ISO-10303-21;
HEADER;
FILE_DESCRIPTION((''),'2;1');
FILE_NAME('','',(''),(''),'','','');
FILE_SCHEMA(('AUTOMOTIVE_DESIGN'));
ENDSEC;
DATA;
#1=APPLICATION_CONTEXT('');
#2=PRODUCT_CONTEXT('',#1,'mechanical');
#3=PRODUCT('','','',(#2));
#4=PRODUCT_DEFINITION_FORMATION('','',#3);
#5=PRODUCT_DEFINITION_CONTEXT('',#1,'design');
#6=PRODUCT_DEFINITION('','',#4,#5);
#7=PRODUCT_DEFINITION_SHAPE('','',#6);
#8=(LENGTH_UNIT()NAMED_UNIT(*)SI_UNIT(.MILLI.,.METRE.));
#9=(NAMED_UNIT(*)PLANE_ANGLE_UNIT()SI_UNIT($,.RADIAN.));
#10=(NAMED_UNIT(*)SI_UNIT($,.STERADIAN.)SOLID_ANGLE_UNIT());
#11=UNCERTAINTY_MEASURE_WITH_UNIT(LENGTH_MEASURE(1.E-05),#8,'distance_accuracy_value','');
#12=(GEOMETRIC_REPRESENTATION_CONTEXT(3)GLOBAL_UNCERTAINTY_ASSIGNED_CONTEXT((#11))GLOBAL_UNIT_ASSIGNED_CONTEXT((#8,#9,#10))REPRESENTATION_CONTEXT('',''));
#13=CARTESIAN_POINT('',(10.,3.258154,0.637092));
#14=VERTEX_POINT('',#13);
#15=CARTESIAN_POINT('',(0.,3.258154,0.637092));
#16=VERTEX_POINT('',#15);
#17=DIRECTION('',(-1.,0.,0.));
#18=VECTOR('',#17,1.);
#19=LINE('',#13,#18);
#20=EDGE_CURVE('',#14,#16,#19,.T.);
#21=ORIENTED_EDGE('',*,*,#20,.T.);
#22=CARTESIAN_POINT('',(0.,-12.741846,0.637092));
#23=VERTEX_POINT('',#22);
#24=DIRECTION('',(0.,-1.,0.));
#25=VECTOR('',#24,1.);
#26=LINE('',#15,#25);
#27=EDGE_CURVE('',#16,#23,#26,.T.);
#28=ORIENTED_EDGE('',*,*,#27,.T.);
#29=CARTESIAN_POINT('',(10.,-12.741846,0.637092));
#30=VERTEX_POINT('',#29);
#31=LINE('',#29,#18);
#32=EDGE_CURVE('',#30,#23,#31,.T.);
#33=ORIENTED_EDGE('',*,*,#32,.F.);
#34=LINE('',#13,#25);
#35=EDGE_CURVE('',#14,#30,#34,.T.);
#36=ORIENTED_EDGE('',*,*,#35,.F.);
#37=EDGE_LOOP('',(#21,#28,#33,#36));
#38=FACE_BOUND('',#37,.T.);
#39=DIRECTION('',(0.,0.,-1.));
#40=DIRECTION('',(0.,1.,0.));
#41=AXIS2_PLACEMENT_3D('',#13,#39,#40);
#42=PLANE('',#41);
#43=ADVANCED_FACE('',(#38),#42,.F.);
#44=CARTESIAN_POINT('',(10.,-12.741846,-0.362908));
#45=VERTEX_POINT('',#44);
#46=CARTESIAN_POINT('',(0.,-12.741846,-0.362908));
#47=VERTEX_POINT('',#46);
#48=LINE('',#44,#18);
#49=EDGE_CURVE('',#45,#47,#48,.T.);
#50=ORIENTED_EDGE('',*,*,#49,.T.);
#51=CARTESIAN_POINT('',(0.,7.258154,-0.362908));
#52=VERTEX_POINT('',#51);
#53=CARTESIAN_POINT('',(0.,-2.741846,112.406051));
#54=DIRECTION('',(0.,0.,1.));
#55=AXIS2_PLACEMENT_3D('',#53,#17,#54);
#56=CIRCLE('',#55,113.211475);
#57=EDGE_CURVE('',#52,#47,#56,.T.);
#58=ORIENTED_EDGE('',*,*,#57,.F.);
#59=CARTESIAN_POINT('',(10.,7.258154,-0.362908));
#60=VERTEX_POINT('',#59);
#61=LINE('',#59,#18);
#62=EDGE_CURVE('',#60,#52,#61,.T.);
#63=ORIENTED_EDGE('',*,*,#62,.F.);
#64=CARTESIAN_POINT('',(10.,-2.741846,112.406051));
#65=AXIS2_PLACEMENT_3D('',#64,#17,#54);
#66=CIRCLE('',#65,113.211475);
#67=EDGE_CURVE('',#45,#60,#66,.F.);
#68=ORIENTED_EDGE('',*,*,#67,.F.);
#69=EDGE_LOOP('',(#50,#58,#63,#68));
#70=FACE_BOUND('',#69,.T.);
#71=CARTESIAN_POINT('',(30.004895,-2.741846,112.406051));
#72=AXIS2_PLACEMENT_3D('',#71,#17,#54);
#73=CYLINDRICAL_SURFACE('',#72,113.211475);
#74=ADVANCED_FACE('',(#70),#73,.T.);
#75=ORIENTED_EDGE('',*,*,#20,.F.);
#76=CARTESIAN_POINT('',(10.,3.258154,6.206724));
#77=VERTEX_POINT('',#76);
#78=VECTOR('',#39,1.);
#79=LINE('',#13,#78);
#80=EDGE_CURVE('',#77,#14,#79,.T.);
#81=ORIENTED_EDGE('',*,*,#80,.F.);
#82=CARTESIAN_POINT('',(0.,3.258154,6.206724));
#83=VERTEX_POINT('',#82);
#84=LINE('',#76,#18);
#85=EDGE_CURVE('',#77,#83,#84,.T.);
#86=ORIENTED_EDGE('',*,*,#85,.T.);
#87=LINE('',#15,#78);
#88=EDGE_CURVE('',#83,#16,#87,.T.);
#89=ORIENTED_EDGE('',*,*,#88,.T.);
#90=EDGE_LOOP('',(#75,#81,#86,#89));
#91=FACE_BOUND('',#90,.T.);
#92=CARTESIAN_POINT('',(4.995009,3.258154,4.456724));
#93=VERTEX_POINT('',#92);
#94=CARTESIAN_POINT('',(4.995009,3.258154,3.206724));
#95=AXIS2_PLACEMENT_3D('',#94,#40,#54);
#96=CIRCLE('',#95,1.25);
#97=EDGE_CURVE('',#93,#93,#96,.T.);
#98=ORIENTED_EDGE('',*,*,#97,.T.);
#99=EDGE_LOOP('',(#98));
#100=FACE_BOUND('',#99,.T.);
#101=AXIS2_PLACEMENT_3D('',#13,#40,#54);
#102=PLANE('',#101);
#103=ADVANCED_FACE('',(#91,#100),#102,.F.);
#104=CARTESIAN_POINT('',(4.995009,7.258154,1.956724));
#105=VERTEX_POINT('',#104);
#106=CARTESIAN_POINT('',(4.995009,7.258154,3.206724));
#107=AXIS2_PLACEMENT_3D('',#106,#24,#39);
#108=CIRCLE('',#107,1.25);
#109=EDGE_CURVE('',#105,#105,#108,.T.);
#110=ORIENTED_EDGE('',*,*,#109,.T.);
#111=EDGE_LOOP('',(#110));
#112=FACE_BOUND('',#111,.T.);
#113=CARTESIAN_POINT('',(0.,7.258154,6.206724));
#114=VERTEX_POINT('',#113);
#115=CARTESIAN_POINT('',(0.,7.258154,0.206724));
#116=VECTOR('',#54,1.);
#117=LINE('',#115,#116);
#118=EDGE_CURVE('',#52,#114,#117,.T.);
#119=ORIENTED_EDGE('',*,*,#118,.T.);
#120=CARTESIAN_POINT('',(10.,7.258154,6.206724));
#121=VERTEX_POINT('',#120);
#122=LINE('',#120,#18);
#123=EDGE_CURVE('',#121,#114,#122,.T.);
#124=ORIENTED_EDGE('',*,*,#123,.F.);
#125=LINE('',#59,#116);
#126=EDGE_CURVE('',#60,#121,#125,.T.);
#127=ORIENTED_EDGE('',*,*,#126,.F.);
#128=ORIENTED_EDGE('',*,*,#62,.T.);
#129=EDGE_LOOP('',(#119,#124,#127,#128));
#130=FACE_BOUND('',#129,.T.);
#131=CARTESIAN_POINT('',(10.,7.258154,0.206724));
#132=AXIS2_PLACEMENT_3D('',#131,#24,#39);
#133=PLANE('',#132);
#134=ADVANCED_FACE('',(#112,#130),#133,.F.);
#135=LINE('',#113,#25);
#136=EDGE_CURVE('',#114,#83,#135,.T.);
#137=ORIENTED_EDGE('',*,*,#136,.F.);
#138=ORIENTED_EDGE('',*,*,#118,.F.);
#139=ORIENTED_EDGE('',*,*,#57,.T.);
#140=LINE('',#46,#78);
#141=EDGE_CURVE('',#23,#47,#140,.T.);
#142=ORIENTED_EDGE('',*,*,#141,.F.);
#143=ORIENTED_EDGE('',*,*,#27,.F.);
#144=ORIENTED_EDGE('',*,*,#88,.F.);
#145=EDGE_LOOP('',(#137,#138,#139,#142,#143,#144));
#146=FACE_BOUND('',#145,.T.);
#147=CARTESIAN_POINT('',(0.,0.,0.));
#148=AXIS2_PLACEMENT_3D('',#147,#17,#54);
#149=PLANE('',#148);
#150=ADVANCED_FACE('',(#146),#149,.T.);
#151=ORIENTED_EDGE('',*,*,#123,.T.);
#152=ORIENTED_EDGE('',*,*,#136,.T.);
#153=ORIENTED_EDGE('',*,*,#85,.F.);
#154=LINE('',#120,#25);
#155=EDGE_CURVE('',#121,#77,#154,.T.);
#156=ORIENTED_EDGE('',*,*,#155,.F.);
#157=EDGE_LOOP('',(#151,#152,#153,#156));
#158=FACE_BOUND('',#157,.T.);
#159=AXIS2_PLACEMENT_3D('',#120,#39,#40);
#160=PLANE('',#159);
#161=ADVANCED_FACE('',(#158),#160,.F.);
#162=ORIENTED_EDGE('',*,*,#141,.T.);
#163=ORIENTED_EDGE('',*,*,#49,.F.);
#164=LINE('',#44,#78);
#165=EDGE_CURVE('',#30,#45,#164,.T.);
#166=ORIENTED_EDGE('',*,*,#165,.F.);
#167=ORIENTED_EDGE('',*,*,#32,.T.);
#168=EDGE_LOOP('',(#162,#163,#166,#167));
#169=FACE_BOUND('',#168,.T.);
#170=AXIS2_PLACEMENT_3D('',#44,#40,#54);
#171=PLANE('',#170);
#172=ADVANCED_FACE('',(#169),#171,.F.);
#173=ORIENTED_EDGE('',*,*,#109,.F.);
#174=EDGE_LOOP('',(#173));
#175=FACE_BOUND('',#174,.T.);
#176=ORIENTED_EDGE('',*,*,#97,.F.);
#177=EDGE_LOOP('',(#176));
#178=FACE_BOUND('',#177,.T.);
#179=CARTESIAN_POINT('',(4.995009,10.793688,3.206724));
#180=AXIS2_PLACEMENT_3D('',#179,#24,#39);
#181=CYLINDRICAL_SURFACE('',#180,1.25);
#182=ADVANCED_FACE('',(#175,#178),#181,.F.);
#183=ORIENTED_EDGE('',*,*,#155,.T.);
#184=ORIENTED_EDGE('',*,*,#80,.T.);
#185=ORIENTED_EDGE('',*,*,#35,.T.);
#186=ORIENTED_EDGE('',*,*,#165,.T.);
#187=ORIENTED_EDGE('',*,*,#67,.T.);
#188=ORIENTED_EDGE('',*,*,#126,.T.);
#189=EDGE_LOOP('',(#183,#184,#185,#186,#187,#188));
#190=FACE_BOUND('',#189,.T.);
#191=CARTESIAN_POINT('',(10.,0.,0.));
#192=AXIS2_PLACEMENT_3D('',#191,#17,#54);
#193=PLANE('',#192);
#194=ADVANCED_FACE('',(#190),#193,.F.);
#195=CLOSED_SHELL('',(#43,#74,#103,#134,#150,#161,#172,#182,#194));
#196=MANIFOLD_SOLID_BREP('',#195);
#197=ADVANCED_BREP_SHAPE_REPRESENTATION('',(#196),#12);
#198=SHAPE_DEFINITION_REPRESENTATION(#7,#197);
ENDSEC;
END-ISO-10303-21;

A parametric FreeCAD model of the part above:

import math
import FreeCAD as App
import Part
import Sketcher


def add_polygon(sketch, points):
    """Adds a closed chain of lines whose ends are joined by coincident constraints."""
    first, n = sketch.GeometryCount, len(points)
    for a, b in zip(points, points[1:] + points[:1]):
        sketch.addGeometry(Part.LineSegment(App.Vector(*a, 0), App.Vector(*b, 0)), False)
    for i in range(n):
        sketch.addConstraint(Sketcher.Constraint("Coincident", first + i, 2, first + (i + 1) % n, 1))

doc = App.newDocument("Part")
params = doc.addObject("Spreadsheet::Sheet", "Params")
for row, (alias, value) in enumerate([
    ("sketch1_width", "4 mm"),
    ("sketch1_width2", "16 mm"),
    ("sketch1_height", "1 mm"),
    ("pad1_length", "10 mm"),
    ("sketch2_diameter", "2.5 mm"),
    ("pocket1_length", "4 mm"),
    ("sketch3_width", "20 mm"),
    ("pad2_length", "10 mm"),
], start=1):
    params.set(f"A{row}", alias)
    params.set(f"B{row}", "=" + value)
    params.setAlias(f"B{row}", alias)

body = doc.addObject("PartDesign::Body", "Body")

sketch1 = doc.addObject("Sketcher::SketchObject", "Sketch")
body.addObject(sketch1)
sketch1.AttachmentSupport = (doc.YZ_Plane, [""])
sketch1.MapMode = "FlatFace"
add_polygon(sketch1, [(7.3, -0.4), (7.3, 6.2), (3.3, 6.2), (3.3, 0.6), (-12.7, 0.6), (-12.7, -0.4)])
sketch1.addConstraint(Sketcher.Constraint("Vertical", 0))
sketch1.addConstraint(Sketcher.Constraint("Horizontal", 1))
sketch1.addConstraint(Sketcher.Constraint("Vertical", 2))
sketch1.addConstraint(Sketcher.Constraint("Horizontal", 3))
sketch1.addConstraint(Sketcher.Constraint("Vertical", 4))
sketch1.addConstraint(Sketcher.Constraint("Horizontal", 5))
sketch1.addConstraint(Sketcher.Constraint("DistanceX", 1, 2, 1, 1, 4.0))
sketch1.addConstraint(Sketcher.Constraint("DistanceX", 3, 2, 3, 1, 16.0))
sketch1.addConstraint(Sketcher.Constraint("DistanceY", 4, 2, 4, 1, 1.0))
sketch1.addConstraint(Sketcher.Constraint("DistanceY", 0, 1, 0, 2, 6.569631))
sketch1.addConstraint(Sketcher.Constraint("DistanceX", -1, 1, 0, 2, 7.258154))
sketch1.addConstraint(Sketcher.Constraint("DistanceY", -1, 1, 0, 2, 6.206724))
sketch1.setExpression("Constraints[12]", "Params.sketch1_width")
sketch1.setExpression("Constraints[13]", "Params.sketch1_width2")
sketch1.setExpression("Constraints[14]", "Params.sketch1_height")
pad1 = doc.addObject("PartDesign::Pad", "Pad")
body.addObject(pad1)
pad1.Profile = sketch1
pad1.setExpression("Length", "Params.pad1_length")

sketch2 = doc.addObject("Sketcher::SketchObject", "Sketch001")
body.addObject(sketch2)
sketch2.AttachmentSupport = (doc.XZ_Plane, [""])
sketch2.MapMode = "FlatFace"
sketch2.AttachmentOffset = App.Placement(App.Vector(0, 0, -3.258154), App.Rotation())
sketch2.addGeometry(Part.Circle(App.Vector(5, 3.2, 0), App.Vector(0, 0, 1), 1.2), False)
sketch2.addConstraint(Sketcher.Constraint("Diameter", 0, 2.5))
sketch2.addConstraint(Sketcher.Constraint("DistanceX", -1, 1, 0, 3, 4.995009))
sketch2.addConstraint(Sketcher.Constraint("DistanceY", -1, 1, 0, 3, 3.206724))
sketch2.setExpression("Constraints[0]", "Params.sketch2_diameter")
pocket1 = doc.addObject("PartDesign::Pocket", "Pocket")
body.addObject(pocket1)
pocket1.Profile = sketch2
pocket1.setExpression("Length", "Params.pocket1_length")

sketch3 = doc.addObject("Sketcher::SketchObject", "Sketch002")
body.addObject(sketch3)
sketch3.AttachmentSupport = (doc.YZ_Plane, [""])
sketch3.MapMode = "FlatFace"
sketch3.addGeometry(Part.LineSegment(App.Vector(-13, 0, 0), App.Vector(7, 0, 0)), False)
sketch3.addGeometry(Part.ArcOfCircle(Part.Circle(App.Vector(-3, 112, 0), App.Vector(0, 0, 1), 113), math.radians(-95.07), math.radians(-84.93)), False)
sketch3.addConstraint(Sketcher.Constraint("Coincident", 0, 1, 1, 1))
sketch3.addConstraint(Sketcher.Constraint("Coincident", 1, 2, 0, 2))
sketch3.addConstraint(Sketcher.Constraint("Horizontal", 0))
sketch3.addConstraint(Sketcher.Constraint("DistanceX", 0, 1, 0, 2, 20.0))
sketch3.addConstraint(Sketcher.Constraint("Radius", 1, 113.211475))
sketch3.addConstraint(Sketcher.Constraint("DistanceY", -1, 1, 1, 3, 112.406051))
sketch3.addConstraint(Sketcher.Constraint("DistanceX", 1, 3, -1, 1, 2.741846))
sketch3.setExpression("Constraints[3]", "Params.sketch3_width")
pad2 = doc.addObject("PartDesign::Pad", "Pad001")
body.addObject(pad2)
pad2.Profile = sketch3
pad2.setExpression("Length", "Params.pad2_length")

doc.recompute()
